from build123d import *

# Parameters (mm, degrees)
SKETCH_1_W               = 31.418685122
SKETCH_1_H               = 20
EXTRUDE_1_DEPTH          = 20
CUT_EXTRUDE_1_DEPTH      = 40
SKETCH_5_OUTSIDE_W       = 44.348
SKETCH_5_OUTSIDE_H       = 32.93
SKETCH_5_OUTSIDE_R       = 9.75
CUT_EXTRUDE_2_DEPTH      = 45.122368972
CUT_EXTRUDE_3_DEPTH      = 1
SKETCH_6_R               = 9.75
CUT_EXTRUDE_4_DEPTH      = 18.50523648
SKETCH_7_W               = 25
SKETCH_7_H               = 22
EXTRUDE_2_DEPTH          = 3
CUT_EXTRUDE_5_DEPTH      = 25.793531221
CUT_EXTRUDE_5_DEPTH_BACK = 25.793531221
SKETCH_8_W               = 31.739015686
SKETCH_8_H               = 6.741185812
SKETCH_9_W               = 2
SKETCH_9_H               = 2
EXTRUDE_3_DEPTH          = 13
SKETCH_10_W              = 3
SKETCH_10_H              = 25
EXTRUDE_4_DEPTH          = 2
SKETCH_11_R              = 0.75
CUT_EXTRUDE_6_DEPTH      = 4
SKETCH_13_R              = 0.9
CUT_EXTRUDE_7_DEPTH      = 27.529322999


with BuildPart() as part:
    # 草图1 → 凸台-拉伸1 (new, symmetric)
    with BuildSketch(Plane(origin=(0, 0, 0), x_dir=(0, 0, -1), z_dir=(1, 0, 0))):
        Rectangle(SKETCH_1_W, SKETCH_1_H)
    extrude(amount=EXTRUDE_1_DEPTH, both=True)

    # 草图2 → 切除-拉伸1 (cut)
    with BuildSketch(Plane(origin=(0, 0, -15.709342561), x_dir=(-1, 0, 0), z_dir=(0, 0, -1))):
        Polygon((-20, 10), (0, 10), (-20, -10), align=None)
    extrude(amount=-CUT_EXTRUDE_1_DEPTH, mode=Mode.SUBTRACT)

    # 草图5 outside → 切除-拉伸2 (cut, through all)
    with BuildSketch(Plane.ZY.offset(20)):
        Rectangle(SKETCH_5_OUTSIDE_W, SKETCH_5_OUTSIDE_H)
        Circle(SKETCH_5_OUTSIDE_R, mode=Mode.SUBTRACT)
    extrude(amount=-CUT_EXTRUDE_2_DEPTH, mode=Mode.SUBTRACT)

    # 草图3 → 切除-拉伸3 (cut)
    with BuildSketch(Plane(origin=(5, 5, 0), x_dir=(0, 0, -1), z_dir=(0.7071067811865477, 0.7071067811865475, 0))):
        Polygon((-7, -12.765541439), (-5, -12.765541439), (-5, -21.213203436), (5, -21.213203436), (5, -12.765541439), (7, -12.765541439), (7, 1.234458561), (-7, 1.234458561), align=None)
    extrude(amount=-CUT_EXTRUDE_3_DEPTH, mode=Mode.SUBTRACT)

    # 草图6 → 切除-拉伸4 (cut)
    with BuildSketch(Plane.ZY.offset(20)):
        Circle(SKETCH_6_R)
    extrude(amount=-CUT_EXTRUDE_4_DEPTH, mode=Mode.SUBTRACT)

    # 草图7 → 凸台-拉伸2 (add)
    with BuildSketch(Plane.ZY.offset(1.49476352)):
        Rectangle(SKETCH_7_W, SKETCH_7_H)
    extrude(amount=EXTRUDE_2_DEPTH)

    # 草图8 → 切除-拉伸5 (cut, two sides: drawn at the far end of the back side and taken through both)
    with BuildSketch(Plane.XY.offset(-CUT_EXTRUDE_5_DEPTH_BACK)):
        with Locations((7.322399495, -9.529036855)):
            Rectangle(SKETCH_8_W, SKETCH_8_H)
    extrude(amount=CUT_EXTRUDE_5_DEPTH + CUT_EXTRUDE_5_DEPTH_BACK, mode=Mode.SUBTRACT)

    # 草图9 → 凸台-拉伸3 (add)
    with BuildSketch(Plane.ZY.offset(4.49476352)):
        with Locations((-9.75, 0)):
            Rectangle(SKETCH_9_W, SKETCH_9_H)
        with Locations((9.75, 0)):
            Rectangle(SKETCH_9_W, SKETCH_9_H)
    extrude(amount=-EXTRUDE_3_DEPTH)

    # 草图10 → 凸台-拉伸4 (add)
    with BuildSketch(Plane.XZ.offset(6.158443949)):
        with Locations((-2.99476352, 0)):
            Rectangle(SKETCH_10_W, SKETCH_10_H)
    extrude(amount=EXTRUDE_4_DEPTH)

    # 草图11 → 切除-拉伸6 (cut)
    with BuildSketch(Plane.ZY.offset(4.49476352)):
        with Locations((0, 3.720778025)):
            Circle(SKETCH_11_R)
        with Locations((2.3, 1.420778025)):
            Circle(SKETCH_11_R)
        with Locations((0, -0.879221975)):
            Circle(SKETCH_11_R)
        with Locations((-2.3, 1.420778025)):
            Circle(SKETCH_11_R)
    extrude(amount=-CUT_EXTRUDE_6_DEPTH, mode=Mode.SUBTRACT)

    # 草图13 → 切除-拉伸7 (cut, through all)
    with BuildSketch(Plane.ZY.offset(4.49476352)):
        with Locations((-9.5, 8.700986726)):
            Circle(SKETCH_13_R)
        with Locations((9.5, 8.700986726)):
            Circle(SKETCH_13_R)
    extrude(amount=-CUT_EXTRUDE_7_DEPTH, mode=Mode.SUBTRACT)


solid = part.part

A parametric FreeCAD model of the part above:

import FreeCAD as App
import Part
import Sketcher
from FreeCAD import Vector
Q = App.Units.Quantity


def add_polygon(sketch, points):
    """Adds a closed chain of lines whose ends are joined by coincident constraints."""
    first, n = sketch.GeometryCount, len(points)
    for a, b in zip(points, points[1:] + points[:1]):
        sketch.addGeometry(Part.LineSegment(App.Vector(*a, 0), App.Vector(*b, 0)), False)
    for i in range(n):
        sketch.addConstraint(Sketcher.Constraint("Coincident", first + i, 2, first + (i + 1) % n, 1))

doc = App.newDocument("Part")
body = doc.addObject("PartDesign::Body", "Body")

# Sketch on YZ plane
sketch1 = body.newObject("Sketcher::SketchObject", "Sketch")
sketch1.AttachmentSupport = (doc.getObject("YZ_Plane"), [""])
sketch1.MapMode = "FlatFace"
add_polygon(sketch1, [(10, 16), (-10, 16), (-10, -16), (10, -16)])  # lines 0-3
sketch1.addConstraint(Sketcher.Constraint("Horizontal", 0))
sketch1.addConstraint(Sketcher.Constraint("Vertical", 1))
sketch1.addConstraint(Sketcher.Constraint("Horizontal", 2))
sketch1.addConstraint(Sketcher.Constraint("Vertical", 3))
sketch1.addConstraint(Sketcher.Constraint("Symmetric", 0, 2, 2, 2, -1, 1))
sketch1.addConstraint(Sketcher.Constraint("DistanceX", 0, 2, 0, 1, Q("20 mm")))
sketch1.addConstraint(Sketcher.Constraint("DistanceY", 1, 2, 1, 1, Q("31.418685 mm")))
pad1 = body.newObject("PartDesign::Pad", "Pad")
pad1.Profile = sketch1
pad1.Length = 40
pad1.Midplane = True

# Sketch on XY plane
sketch2 = body.newObject("Sketcher::SketchObject", "Sketch001")
sketch2.AttachmentSupport = (doc.getObject("XY_Plane"), [""])
sketch2.MapMode = "FlatFace"
sketch2.AttachmentOffset = App.Placement(Vector(0, 0, -15.709343), App.Rotation())
add_polygon(sketch2, [(0, 10), (20, 10), (20, -10)])  # lines 0-2
sketch2.addConstraint(Sketcher.Constraint("Horizontal", 0))
sketch2.addConstraint(Sketcher.Constraint("Vertical", 1))
sketch2.addConstraint(Sketcher.Constraint("PointOnObject", 2, 2, -2))
sketch2.addConstraint(Sketcher.Constraint("Equal", 0, 1))
sketch2.addConstraint(Sketcher.Constraint("DistanceX", 0, 1, 0, 2, Q("20 mm")))
sketch2.addConstraint(Sketcher.Constraint("DistanceY", -1, 1, 0, 2, Q("10 mm")))
pocket1 = body.newObject("PartDesign::Pocket", "Pocket")
pocket1.Profile = sketch2
pocket1.Length = 40
pocket1.Reversed = True

# Sketch on YZ plane
sketch3 = body.newObject("Sketcher::SketchObject", "Sketch002")
sketch3.AttachmentSupport = (doc.getObject("YZ_Plane"), [""])
sketch3.MapMode = "FlatFace"
sketch3.AttachmentOffset = App.Placement(Vector(0, 0, -20), App.Rotation())
add_polygon(sketch3, [(16, -22), (-16, -22), (-16, 22), (16, 22)])  # lines 0-3
sketch3.addGeometry(Part.Circle(Vector(0, 0, 0), Vector(0, 0, 1), 10), False)  # 4
sketch3.addConstraint(Sketcher.Constraint("Horizontal", 0))
sketch3.addConstraint(Sketcher.Constraint("Vertical", 1))
sketch3.addConstraint(Sketcher.Constraint("Horizontal", 2))
sketch3.addConstraint(Sketcher.Constraint("Vertical", 3))
sketch3.addConstraint(Sketcher.Constraint("Coincident", 4, 3, -1, 1))
sketch3.addConstraint(Sketcher.Constraint("Symmetric", 0, 2, 2, 2, -1, 1))
sketch3.addConstraint(Sketcher.Constraint("Diameter", 4, Q("19.5 mm")))
sketch3.addConstraint(Sketcher.Constraint("DistanceX", 0, 2, 0, 1, Q("32.93 mm")))
sketch3.addConstraint(Sketcher.Constraint("DistanceY", 1, 1, 1, 2, Q("44.348 mm")))
pocket2 = body.newObject("PartDesign::Pocket", "Pocket001")
pocket2.Profile = sketch3
pocket2.Type = "ThroughAll"
pocket2.Reversed = True

# Sketch on an angled plane
sketch4 = body.newObject("Sketcher::SketchObject", "Sketch003")
sketch4.Placement = App.Placement(Vector(5, 5, 0), App.Rotation(Vector(0, 0, -1), Vector(-0.707106781, 0.707106781, 0), Vector(0.707106781, 0.707106781, 0), "ZXY"))
add_polygon(sketch4, [(-7, -12.8), (-5, -12.8), (-5, -21.2), (5, -21.2), (5, -12.8), (7, -12.8), (7, 1.2), (-7, 1.2)])  # lines 0-7
sketch4.addConstraint(Sketcher.Constraint("Horizontal", 0))
sketch4.addConstraint(Sketcher.Constraint("Vertical", 1))
sketch4.addConstraint(Sketcher.Constraint("Horizontal", 2))
sketch4.addConstraint(Sketcher.Constraint("Vertical", 3))
sketch4.addConstraint(Sketcher.Constraint("Horizontal", 4))
sketch4.addConstraint(Sketcher.Constraint("Vertical", 5))
sketch4.addConstraint(Sketcher.Constraint("Horizontal", 6))
sketch4.addConstraint(Sketcher.Constraint("Vertical", 7))
sketch4.addConstraint(Sketcher.Constraint("Symmetric", 0, 2, 3, 2, -2))
sketch4.addConstraint(Sketcher.Constraint("Equal", 0, 4))
sketch4.addConstraint(Sketcher.Constraint("Equal", 6, 5))
sketch4.addConstraint(Sketcher.Constraint("DistanceX", 0, 1, 0, 2, Q("2 mm")))
sketch4.addConstraint(Sketcher.Constraint("DistanceX", 2, 1, 2, 2, Q("10 mm")))
sketch4.addConstraint(Sketcher.Constraint("DistanceY", 1, 2, 1, 1, Q("8.447662 mm")))
sketch4.addConstraint(Sketcher.Constraint("DistanceY", 0, 2, -1, 1, Q("12.765541 mm")))
pocket3 = body.newObject("PartDesign::Pocket", "Pocket002")
pocket3.Profile = sketch4
pocket3.Length = 1

# Sketch on YZ plane
sketch5 = body.newObject("Sketcher::SketchObject", "Sketch004")
sketch5.AttachmentSupport = (doc.getObject("YZ_Plane"), [""])
sketch5.MapMode = "FlatFace"
sketch5.AttachmentOffset = App.Placement(Vector(0, 0, -20), App.Rotation())
sketch5.addGeometry(Part.Circle(Vector(0, 0, 0), Vector(0, 0, 1), 10), False)
sketch5.addConstraint(Sketcher.Constraint("Coincident", 0, 3, -1, 1))
sketch5.addConstraint(Sketcher.Constraint("Diameter", 0, Q("19.5 mm")))
pocket4 = body.newObject("PartDesign::Pocket", "Pocket003")
pocket4.Profile = sketch5
pocket4.Length = 18.505236
pocket4.Reversed = True

# Sketch on YZ plane
sketch6 = body.newObject("Sketcher::SketchObject", "Sketch005")
sketch6.AttachmentSupport = (doc.getObject("YZ_Plane"), [""])
sketch6.MapMode = "FlatFace"
sketch6.AttachmentOffset = App.Placement(Vector(0, 0, -1.494764), App.Rotation())
add_polygon(sketch6, [(11, -12), (-11, -12), (-11, 12), (11, 12)])  # lines 0-3
sketch6.addConstraint(Sketcher.Constraint("Horizontal", 0))
sketch6.addConstraint(Sketcher.Constraint("Vertical", 1))
sketch6.addConstraint(Sketcher.Constraint("Horizontal", 2))
sketch6.addConstraint(Sketcher.Constraint("Vertical", 3))
sketch6.addConstraint(Sketcher.Constraint("Symmetric", 0, 2, 2, 2, -1, 1))
sketch6.addConstraint(Sketcher.Constraint("DistanceX", 0, 2, 0, 1, Q("22 mm")))
sketch6.addConstraint(Sketcher.Constraint("DistanceY", 1, 1, 1, 2, Q("25 mm")))
pad2 = body.newObject("PartDesign::Pad", "Pad001")
pad2.Profile = sketch6
pad2.Length = 3
pad2.Reversed = True

# Sketch on XY plane
sketch7 = body.newObject("Sketcher::SketchObject", "Sketch006")
sketch7.AttachmentSupport = (doc.getObject("XY_Plane"), [""])
sketch7.MapMode = "FlatFace"
add_polygon(sketch7, [(-9, -6), (-9, -13), (23, -13), (23, -6)])  # lines 0-3
sketch7.addConstraint(Sketcher.Constraint("Vertical", 0))
sketch7.addConstraint(Sketcher.Constraint("Horizontal", 1))
sketch7.addConstraint(Sketcher.Constraint("Vertical", 2))
sketch7.addConstraint(Sketcher.Constraint("Horizontal", 3))
sketch7.addConstraint(Sketcher.Constraint("DistanceX", 1, 1, 1, 2, Q("31.739016 mm")))
sketch7.addConstraint(Sketcher.Constraint("DistanceY", 0, 2, 0, 1, Q("6.741186 mm")))
sketch7.addConstraint(Sketcher.Constraint("DistanceX", 0, 2, -1, 1, Q("8.547108 mm")))
sketch7.addConstraint(Sketcher.Constraint("DistanceY", 0, 2, -1, 1, Q("12.89963 mm")))
pocket5 = body.newObject("PartDesign::Pocket", "Pocket004")
pocket5.Profile = sketch7
pocket5.Type = "ThroughAll"
pocket5.Midplane = True

# Sketch on YZ plane
sketch8 = body.newObject("Sketcher::SketchObject", "Sketch007")
sketch8.AttachmentSupport = (doc.getObject("YZ_Plane"), [""])
sketch8.MapMode = "FlatFace"
sketch8.AttachmentOffset = App.Placement(Vector(0, 0, -4.494764), App.Rotation())
add_polygon(sketch8, [(1, -10.8), (-1, -10.8), (-1, -8.8), (1, -8.8)])  # lines 0-3
add_polygon(sketch8, [(1, 8.8), (-1, 8.8), (-1, 10.8), (1, 10.8)])  # lines 4-7
sketch8.addConstraint(Sketcher.Constraint("Horizontal", 0))
sketch8.addConstraint(Sketcher.Constraint("Vertical", 1))
sketch8.addConstraint(Sketcher.Constraint("Horizontal", 2))
sketch8.addConstraint(Sketcher.Constraint("Vertical", 3))
sketch8.addConstraint(Sketcher.Constraint("Horizontal", 4))
sketch8.addConstraint(Sketcher.Constraint("Vertical", 5))
sketch8.addConstraint(Sketcher.Constraint("Horizontal", 6))
sketch8.addConstraint(Sketcher.Constraint("Vertical", 7))
sketch8.addConstraint(Sketcher.Constraint("Symmetric", 2, 2, 4, 2, -1, 1))
sketch8.addConstraint(Sketcher.Constraint("Symmetric", 0, 2, 6, 2, -1, 1))
sketch8.addConstraint(Sketcher.Constraint("Vertical", 1, 2, 4, 2))
sketch8.addConstraint(Sketcher.Constraint("Equal", 6, 1))
sketch8.addConstraint(Sketcher.Constraint("DistanceX", 0, 2, 0, 1, Q("2 mm")))
sketch8.addConstraint(Sketcher.Constraint("DistanceY", 1, 2, 4, 2, Q("17.5 mm")))
pad3 = body.newObject("PartDesign::Pad", "Pad002")
pad3.Profile = sketch8
pad3.Length = 13

# Sketch on XZ plane
sketch9 = body.newObject("Sketcher::SketchObject", "Sketch008")
sketch9.AttachmentSupport = (doc.getObject("XZ_Plane"), [""])
sketch9.MapMode = "FlatFace"
sketch9.AttachmentOffset = App.Placement(Vector(0, 0, 6.158444), App.Rotation())
add_polygon(sketch9, [(-4.5, 12.5), (-4.5, -12.5), (-1.5, -12.5), (-1.5, 12.5)])  # lines 0-3
sketch9.addConstraint(Sketcher.Constraint("Vertical", 0))
sketch9.addConstraint(Sketcher.Constraint("Horizontal", 1))
sketch9.addConstraint(Sketcher.Constraint("Vertical", 2))
sketch9.addConstraint(Sketcher.Constraint("Horizontal", 3))
sketch9.addConstraint(Sketcher.Constraint("DistanceX", 1, 1, 1, 2, Q("3 mm")))
sketch9.addConstraint(Sketcher.Constraint("DistanceY", 0, 2, 0, 1, Q("25 mm")))
sketch9.addConstraint(Sketcher.Constraint("DistanceY", 0, 2, -1, 1, Q("12.5 mm")))
sketch9.addConstraint(Sketcher.Constraint("DistanceX", 0, 2, -1, 1, Q("4.494764 mm")))
pad4 = body.newObject("PartDesign::Pad", "Pad003")
pad4.Profile = sketch9
pad4.Length = 2

# Sketch on YZ plane
sketch10 = body.newObject("Sketcher::SketchObject", "Sketch009")
sketch10.AttachmentSupport = (doc.getObject("YZ_Plane"), [""])
sketch10.MapMode = "FlatFace"
sketch10.AttachmentOffset = App.Placement(Vector(0, 0, -4.494764), App.Rotation())
sketch10.addGeometry(Part.Circle(Vector(3.7, 0, 0), Vector(0, 0, 1), 0.8), False)
sketch10.addGeometry(Part.Circle(Vector(1.4, 2.3, 0), Vector(0, 0, 1), 0.8), False)
sketch10.addGeometry(Part.Circle(Vector(-0.9, 0, 0), Vector(0, 0, 1), 0.8), False)
sketch10.addGeometry(Part.Circle(Vector(1.4, -2.3, 0), Vector(0, 0, 1), 0.8), False)
sketch10.addConstraint(Sketcher.Constraint("Equal", 0, 1))
sketch10.addConstraint(Sketcher.Constraint("Equal", 1, 2))
sketch10.addConstraint(Sketcher.Constraint("Equal", 2, 3))
sketch10.addConstraint(Sketcher.Constraint("Symmetric", 1, 3, 3, 3, -1))
sketch10.addConstraint(Sketcher.Constraint("PointOnObject", 0, 3, -1))
sketch10.addConstraint(Sketcher.Constraint("PointOnObject", 2, 3, -1))
sketch10.addConstraint(Sketcher.Constraint("Diameter", 0, Q("1.5 mm")))
sketch10.addConstraint(Sketcher.Constraint("DistanceY", -1, 1, 1, 3, Q("2.3 mm")))
sketch10.addConstraint(Sketcher.Constraint("DistanceX", 1, 3, 0, 3, Q("2.3 mm")))
sketch10.addConstraint(Sketcher.Constraint("DistanceX", 2, 3, 1, 3, Q("2.3 mm")))
sketch10.addConstraint(Sketcher.Constraint("DistanceX", -1, 1, 0, 3, Q("3.720778 mm")))
pocket6 = body.newObject("PartDesign::Pocket", "Pocket005")
pocket6.Profile = sketch10
pocket6.Length = 4
pocket6.Reversed = True

# Sketch on YZ plane
sketch11 = body.newObject("Sketcher::SketchObject", "Sketch010")
sketch11.AttachmentSupport = (doc.getObject("YZ_Plane"), [""])
sketch11.MapMode = "FlatFace"
sketch11.AttachmentOffset = App.Placement(Vector(0, 0, -4.494764), App.Rotation())
sketch11.addGeometry(Part.Circle(Vector(8.7, -9.5, 0), Vector(0, 0, 1), 0.9), False)
sketch11.addGeometry(Part.Circle(Vector(8.7, 9.5, 0), Vector(0, 0, 1), 0.9), False)
sketch11.addConstraint(Sketcher.Constraint("Equal", 0, 1))
sketch11.addConstraint(Sketcher.Constraint("Symmetric", 0, 3, 1, 3, -1))
sketch11.addConstraint(Sketcher.Constraint("Diameter", 0, Q("1.8 mm")))
sketch11.addConstraint(Sketcher.Constraint("DistanceY", 0, 3, 1, 3, Q("19 mm")))
sketch11.addConstraint(Sketcher.Constraint("DistanceX", -1, 1, 0, 3, Q("8.700987 mm")))
pocket7 = body.newObject("PartDesign::Pocket", "Pocket006")
pocket7.Profile = sketch11
pocket7.Type = "ThroughAll"
pocket7.Reversed = True

doc.recompute()
